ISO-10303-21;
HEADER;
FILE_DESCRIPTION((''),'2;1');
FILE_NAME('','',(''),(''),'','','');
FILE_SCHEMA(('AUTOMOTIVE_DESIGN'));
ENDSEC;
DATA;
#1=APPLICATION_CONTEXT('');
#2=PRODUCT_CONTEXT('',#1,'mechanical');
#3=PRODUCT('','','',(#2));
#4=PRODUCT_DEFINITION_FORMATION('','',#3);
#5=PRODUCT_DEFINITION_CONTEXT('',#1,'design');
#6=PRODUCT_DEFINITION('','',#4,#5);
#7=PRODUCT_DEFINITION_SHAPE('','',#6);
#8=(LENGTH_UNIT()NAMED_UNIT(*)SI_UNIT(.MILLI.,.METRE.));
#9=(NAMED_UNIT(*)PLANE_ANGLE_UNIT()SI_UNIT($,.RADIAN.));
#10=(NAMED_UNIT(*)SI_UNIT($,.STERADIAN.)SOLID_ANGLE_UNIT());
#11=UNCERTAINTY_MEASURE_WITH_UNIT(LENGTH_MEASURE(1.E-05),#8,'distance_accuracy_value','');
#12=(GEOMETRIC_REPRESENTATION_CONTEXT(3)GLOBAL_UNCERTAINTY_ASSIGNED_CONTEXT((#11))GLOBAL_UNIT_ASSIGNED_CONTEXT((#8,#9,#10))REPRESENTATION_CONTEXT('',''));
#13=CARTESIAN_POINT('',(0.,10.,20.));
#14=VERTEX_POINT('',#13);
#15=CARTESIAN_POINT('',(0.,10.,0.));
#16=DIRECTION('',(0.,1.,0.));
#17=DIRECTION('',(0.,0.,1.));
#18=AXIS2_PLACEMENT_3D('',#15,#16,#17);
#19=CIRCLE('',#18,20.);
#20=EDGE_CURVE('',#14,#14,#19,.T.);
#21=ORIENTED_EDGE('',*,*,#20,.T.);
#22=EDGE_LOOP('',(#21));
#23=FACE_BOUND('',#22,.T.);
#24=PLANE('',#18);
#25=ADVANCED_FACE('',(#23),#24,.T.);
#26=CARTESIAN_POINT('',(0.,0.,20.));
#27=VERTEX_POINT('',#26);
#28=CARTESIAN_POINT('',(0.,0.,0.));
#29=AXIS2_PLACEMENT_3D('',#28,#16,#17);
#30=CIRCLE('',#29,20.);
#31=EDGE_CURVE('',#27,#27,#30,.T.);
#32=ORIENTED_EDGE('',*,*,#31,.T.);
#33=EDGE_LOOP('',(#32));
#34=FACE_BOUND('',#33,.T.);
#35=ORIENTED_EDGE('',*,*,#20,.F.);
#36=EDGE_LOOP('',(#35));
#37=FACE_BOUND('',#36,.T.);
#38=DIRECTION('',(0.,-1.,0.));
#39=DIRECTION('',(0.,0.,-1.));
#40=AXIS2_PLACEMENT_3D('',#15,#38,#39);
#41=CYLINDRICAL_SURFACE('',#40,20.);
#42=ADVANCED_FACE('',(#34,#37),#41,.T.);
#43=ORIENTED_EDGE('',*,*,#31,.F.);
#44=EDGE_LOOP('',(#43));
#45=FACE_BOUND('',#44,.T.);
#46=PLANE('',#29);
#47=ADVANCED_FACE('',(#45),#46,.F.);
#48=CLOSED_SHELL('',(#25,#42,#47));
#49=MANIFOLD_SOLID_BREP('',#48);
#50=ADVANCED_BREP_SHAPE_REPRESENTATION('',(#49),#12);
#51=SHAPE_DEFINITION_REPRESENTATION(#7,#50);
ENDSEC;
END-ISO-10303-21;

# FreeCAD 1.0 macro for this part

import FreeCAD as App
import Part
import Sketcher
from FreeCAD import Vector

doc = App.newDocument("Part")
body = doc.addObject("PartDesign::Body", "Body")

# Sketch on XZ plane
sketch1 = body.newObject("Sketcher::SketchObject", "Sketch")
sketch1.AttachmentSupport = (doc.getObject("XZ_Plane"), [""])
sketch1.MapMode = "FlatFace"
sketch1.addGeometry(Part.Circle(Vector(0, 0, 0), Vector(0, 0, 1), 20), False)
sketch1.addConstraint([
    Sketcher.Constraint("Coincident", 0, 3, -1, 1),
    Sketcher.Constraint("Diameter", 0, 40.0),
])
pad1 = body.newObject("PartDesign::Pad", "Pad")
pad1.Profile = sketch1
pad1.Length = 10
pad1.Reversed = True

doc.recompute()
